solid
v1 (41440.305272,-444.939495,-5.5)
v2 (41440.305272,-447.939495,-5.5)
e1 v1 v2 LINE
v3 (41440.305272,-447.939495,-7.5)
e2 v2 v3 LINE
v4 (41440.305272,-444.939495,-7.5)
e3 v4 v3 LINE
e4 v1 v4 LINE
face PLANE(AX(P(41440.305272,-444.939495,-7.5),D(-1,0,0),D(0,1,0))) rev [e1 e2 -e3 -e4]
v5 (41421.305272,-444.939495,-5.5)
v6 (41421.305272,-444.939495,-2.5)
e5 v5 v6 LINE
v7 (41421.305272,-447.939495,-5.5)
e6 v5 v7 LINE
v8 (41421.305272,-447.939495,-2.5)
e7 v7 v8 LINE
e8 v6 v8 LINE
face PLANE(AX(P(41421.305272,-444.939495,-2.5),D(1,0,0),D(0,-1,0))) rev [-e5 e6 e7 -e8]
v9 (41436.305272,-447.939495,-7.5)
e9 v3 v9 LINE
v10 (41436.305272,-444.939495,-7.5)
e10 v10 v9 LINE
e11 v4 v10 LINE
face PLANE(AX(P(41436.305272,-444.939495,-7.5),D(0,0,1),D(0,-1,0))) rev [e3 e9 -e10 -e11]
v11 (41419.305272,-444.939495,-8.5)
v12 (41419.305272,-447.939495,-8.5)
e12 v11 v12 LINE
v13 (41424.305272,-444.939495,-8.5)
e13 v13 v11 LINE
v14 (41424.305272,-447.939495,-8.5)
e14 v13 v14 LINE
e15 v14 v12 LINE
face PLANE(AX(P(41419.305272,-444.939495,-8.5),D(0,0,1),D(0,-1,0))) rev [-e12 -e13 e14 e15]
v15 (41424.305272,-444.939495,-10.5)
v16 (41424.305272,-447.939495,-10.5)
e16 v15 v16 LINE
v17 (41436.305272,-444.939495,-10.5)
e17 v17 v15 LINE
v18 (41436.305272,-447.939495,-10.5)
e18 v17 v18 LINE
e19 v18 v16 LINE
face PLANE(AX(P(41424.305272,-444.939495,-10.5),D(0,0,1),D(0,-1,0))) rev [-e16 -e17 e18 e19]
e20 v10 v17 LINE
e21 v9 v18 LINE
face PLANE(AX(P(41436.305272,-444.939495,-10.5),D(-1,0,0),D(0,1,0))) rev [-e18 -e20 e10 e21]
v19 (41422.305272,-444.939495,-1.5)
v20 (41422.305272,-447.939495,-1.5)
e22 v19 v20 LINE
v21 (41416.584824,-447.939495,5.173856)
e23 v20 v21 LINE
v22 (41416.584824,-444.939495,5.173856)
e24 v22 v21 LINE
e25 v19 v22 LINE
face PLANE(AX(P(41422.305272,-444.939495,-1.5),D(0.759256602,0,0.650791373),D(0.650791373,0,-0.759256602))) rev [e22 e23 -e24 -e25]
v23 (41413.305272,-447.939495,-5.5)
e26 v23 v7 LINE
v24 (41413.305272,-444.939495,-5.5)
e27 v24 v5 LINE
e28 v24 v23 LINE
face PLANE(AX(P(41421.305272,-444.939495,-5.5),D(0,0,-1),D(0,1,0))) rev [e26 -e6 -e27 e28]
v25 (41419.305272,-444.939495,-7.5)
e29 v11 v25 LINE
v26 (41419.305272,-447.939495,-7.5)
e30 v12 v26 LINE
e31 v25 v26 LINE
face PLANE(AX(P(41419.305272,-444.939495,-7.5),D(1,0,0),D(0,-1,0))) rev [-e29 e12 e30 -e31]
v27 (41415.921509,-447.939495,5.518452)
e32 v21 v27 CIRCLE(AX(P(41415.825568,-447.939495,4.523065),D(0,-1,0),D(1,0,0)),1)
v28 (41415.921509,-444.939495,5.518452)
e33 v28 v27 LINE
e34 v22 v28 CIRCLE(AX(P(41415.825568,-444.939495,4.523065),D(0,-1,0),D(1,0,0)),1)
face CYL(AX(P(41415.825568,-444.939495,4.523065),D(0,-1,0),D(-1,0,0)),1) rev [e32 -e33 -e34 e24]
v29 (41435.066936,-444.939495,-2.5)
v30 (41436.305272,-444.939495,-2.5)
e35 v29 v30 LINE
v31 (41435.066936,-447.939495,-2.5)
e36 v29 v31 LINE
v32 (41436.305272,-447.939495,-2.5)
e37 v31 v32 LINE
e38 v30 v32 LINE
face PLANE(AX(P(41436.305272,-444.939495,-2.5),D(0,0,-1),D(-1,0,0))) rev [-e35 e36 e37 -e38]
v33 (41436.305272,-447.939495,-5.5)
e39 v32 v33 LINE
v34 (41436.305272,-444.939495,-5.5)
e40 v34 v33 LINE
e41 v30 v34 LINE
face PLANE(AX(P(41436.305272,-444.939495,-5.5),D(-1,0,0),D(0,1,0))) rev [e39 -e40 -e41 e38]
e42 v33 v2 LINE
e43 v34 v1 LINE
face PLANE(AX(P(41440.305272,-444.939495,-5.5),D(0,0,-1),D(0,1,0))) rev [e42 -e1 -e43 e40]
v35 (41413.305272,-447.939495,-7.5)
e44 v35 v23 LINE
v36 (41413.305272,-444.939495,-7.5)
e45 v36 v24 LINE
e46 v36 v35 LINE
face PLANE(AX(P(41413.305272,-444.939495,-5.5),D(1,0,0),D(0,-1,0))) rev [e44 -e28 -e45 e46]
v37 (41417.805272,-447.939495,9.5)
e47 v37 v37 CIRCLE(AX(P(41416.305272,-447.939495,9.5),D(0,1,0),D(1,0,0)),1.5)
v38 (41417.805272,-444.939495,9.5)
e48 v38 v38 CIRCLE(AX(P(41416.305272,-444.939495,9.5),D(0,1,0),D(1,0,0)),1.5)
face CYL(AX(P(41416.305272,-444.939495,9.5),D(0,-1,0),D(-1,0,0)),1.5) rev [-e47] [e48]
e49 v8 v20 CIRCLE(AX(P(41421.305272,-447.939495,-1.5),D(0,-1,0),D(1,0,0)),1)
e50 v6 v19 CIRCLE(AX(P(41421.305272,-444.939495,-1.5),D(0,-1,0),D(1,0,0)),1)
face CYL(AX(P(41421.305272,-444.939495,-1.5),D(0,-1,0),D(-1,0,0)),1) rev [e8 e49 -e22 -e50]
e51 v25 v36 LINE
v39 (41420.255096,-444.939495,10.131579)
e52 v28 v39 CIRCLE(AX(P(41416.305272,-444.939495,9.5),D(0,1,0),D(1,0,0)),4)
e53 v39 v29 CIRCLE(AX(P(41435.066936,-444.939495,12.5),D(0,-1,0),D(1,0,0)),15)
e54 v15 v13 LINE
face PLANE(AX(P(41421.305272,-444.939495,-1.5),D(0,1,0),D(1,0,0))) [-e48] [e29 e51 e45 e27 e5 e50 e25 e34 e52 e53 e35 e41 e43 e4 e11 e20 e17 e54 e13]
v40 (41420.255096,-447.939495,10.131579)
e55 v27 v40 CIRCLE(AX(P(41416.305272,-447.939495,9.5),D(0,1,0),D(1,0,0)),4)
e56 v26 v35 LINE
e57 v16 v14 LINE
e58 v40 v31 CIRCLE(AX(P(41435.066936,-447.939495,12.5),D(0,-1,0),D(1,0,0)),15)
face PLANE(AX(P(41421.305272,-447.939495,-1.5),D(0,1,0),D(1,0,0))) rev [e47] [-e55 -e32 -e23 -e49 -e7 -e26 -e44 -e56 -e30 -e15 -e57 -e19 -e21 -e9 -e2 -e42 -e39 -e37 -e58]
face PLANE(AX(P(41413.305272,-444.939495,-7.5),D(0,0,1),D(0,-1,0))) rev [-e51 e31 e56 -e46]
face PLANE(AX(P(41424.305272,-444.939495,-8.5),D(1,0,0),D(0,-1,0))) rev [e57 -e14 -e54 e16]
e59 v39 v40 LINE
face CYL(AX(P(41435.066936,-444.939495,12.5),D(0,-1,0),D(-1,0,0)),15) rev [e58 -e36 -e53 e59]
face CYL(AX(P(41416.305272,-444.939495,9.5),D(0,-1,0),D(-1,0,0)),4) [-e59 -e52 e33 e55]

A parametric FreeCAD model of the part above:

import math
import FreeCAD as App
import Part
import Sketcher
from FreeCAD import Vector

doc = App.newDocument("Part")
body = doc.addObject("PartDesign::Body", "Body")

# Sketch on XY plane
sketch1 = body.newObject("Sketcher::SketchObject", "Sketch")
sketch1.AttachmentSupport = (doc.getObject("XY_Plane"), [""])
sketch1.MapMode = "FlatFace"
sketch1.addGeometry([
    Part.LineSegment(Vector(41421.3, -439.4, 0), Vector(41421.3, -442.4, 0)),  # 0
    Part.ArcOfCircle(Part.Circle(Vector(41421.3, -443.4, 0), Vector(0, 0, 1), 1), math.radians(0), math.radians(90)),  # 1
    Part.LineSegment(Vector(41422.3, -443.4, 0), Vector(41416.6, -450.1, 0)),  # 2
    Part.ArcOfCircle(Part.Circle(Vector(41415.8, -449.5, 0), Vector(0, 0, 1), 1), math.radians(-84), math.radians(-41)),  # 3
    Part.ArcOfCircle(Part.Circle(Vector(41416.3, -454.4, 0), Vector(0, 0, 1), 4), math.radians(96), math.radians(351)),  # 4
    Part.ArcOfCircle(Part.Circle(Vector(41435.1, -457.4, 0), Vector(0, 0, 1), 15), math.radians(90), math.radians(171)),  # 5
    Part.LineSegment(Vector(41435.1, -442.4, 0), Vector(41436.3, -442.4, 0)),  # 6
    Part.LineSegment(Vector(41436.3, -442.4, 0), Vector(41436.3, -439.4, 0)),  # 7
    Part.LineSegment(Vector(41436.3, -439.4, 0), Vector(41440.3, -439.4, 0)),  # 8
    Part.LineSegment(Vector(41440.3, -439.4, 0), Vector(41440.3, -437.4, 0)),  # 9
    Part.LineSegment(Vector(41440.3, -437.4, 0), Vector(41436.3, -437.4, 0)),  # 10
    Part.LineSegment(Vector(41436.3, -437.4, 0), Vector(41436.3, -434.4, 0)),  # 11
    Part.LineSegment(Vector(41436.3, -434.4, 0), Vector(41424.3, -434.4, 0)),  # 12
    Part.LineSegment(Vector(41424.3, -434.4, 0), Vector(41424.3, -436.4, 0)),  # 13
    Part.LineSegment(Vector(41424.3, -436.4, 0), Vector(41419.3, -436.4, 0)),  # 14
    Part.LineSegment(Vector(41419.3, -436.4, 0), Vector(41419.3, -437.4, 0)),  # 15
    Part.LineSegment(Vector(41419.3, -437.4, 0), Vector(41413.3, -437.4, 0)),  # 16
    Part.LineSegment(Vector(41413.3, -437.4, 0), Vector(41413.3, -439.4, 0)),  # 17
    Part.LineSegment(Vector(41413.3, -439.4, 0), Vector(41421.3, -439.4, 0)),  # 18
    Part.Circle(Vector(41416.3, -454.4, 0), Vector(0, 0, 1), 1.5),  # 19
], False)
sketch1.addConstraint([
    Sketcher.Constraint("Coincident", 0, 2, 1, 2),
    Sketcher.Constraint("Coincident", 1, 1, 2, 1),
    Sketcher.Constraint("Tangent", 2, 2, 3, 2),
    Sketcher.Constraint("Tangent", 3, 1, 4, 1),
    Sketcher.Constraint("Tangent", 4, 2, 5, 2),
    Sketcher.Constraint("Tangent", 5, 1, 6, 1),
    Sketcher.Constraint("Coincident", 6, 2, 7, 1),
    Sketcher.Constraint("Coincident", 7, 2, 8, 1),
    Sketcher.Constraint("Coincident", 8, 2, 9, 1),
    Sketcher.Constraint("Coincident", 9, 2, 10, 1),
    Sketcher.Constraint("Coincident", 10, 2, 11, 1),
    Sketcher.Constraint("Coincident", 11, 2, 12, 1),
    Sketcher.Constraint("Coincident", 12, 2, 13, 1),
    Sketcher.Constraint("Coincident", 13, 2, 14, 1),
    Sketcher.Constraint("Coincident", 14, 2, 15, 1),
    Sketcher.Constraint("Coincident", 15, 2, 16, 1),
    Sketcher.Constraint("Coincident", 16, 2, 17, 1),
    Sketcher.Constraint("Coincident", 17, 2, 18, 1),
    Sketcher.Constraint("Coincident", 18, 2, 0, 1),
    Sketcher.Constraint("Vertical", 0),
    Sketcher.Constraint("Horizontal", 6),
    Sketcher.Constraint("Vertical", 7),
    Sketcher.Constraint("Horizontal", 8),
    Sketcher.Constraint("Vertical", 9),
    Sketcher.Constraint("Horizontal", 10),
    Sketcher.Constraint("Vertical", 11),
    Sketcher.Constraint("Horizontal", 12),
    Sketcher.Constraint("Vertical", 13),
    Sketcher.Constraint("Horizontal", 14),
    Sketcher.Constraint("Vertical", 15),
    Sketcher.Constraint("Horizontal", 16),
    Sketcher.Constraint("Vertical", 17),
    Sketcher.Constraint("Horizontal", 18),
    Sketcher.Constraint("Coincident", 19, 3, 4, 3),
    Sketcher.Constraint("Equal", 1, 3),
    Sketcher.Constraint("Horizontal", 0, 2, 5, 1),
    Sketcher.Constraint("Horizontal", 10, 2, 15, 2),
    Sketcher.Constraint("Horizontal", 8, 2, 17, 2),
    Sketcher.Constraint("Vertical", 1, 3, 0, 2),
    Sketcher.Constraint("Vertical", 7, 2, 10, 2),
    Sketcher.Constraint("Equal", 7, 11),
    Sketcher.Constraint("Equal", 9, 13),
    Sketcher.Constraint("Diameter", 19, 3.0),
    Sketcher.Constraint("Radius", 1, 1.0),
    Sketcher.Constraint("Radius", 4, 4.0),
    Sketcher.Constraint("Radius", 5, 15.0),
    Sketcher.Constraint("DistanceX", 8, 1, 8, 2, 4.0),
    Sketcher.Constraint("DistanceX", 12, 2, 12, 1, 12.0),
    Sketcher.Constraint("DistanceX", 14, 2, 14, 1, 5.0),
    Sketcher.Constraint("DistanceX", 16, 2, 16, 1, 6.0),
    Sketcher.Constraint("DistanceX", 18, 1, 18, 2, 8.0),
    Sketcher.Constraint("DistanceY", 0, 2, 0, 1, 3.0),
    Sketcher.Constraint("DistanceY", 9, 1, 9, 2, 2.0),
    Sketcher.Constraint("DistanceX", 4, 3, 1, 3, 5.0),
    Sketcher.Constraint("DistanceY", 4, 3, 1, 3, 11.0),
    Sketcher.Constraint("DistanceY", 1, 1, 0, 2, 1.0),
    Sketcher.Constraint("DistanceY", 3, 3, -1, 1, 449.46256),
    Sketcher.Constraint("DistanceY", 2, 2, -1, 1, 450.113352),
    Sketcher.Constraint("DistanceX", -1, 1, 3, 1, 41415.921509),
])
pad1 = body.newObject("PartDesign::Pad", "Pad")
pad1.Profile = sketch1
pad1.Length = 3
body2 = doc.addObject("PartDesign::Body", "Body001")
doc.recompute()

body.Placement = App.Placement(Vector(0, -447.939495, -444.939495), App.Rotation(Vector(-1, 0, 0), 90))
boolean = body2.newObject("PartDesign::Boolean", "Boolean")
boolean.Type = "Fuse"
boolean.addObjects([body])

doc.recompute()
